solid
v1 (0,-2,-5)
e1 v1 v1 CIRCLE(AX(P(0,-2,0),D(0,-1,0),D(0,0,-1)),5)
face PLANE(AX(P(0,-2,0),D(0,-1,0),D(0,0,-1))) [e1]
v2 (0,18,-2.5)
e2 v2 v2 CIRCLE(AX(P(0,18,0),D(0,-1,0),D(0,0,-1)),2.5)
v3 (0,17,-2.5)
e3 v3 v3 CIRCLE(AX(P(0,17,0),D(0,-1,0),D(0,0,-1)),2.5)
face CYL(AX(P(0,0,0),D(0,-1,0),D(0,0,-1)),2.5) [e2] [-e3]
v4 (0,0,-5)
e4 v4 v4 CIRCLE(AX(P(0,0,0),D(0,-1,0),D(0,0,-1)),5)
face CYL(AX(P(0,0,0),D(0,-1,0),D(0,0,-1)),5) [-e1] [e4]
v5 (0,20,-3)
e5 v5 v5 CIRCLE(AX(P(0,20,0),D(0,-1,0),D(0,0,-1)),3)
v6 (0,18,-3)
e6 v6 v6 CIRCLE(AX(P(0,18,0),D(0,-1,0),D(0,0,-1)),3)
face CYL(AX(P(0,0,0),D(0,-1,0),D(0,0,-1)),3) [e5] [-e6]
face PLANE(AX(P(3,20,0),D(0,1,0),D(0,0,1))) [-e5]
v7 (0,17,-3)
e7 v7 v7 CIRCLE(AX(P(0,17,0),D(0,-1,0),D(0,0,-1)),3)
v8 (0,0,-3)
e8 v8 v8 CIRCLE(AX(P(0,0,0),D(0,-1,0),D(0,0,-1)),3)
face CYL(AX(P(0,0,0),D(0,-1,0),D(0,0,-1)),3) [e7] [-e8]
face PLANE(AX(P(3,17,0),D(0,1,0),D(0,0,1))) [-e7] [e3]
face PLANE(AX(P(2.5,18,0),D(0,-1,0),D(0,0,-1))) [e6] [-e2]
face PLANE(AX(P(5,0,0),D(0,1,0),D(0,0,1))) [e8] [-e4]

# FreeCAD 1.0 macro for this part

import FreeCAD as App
import Part
import Sketcher

V = App.Vector
Q = App.Units.Quantity

doc = App.newDocument("Part")
body = doc.addObject("PartDesign::Body", "Body")

# Sketch on XY plane
sketch1 = doc.addObject("Sketcher::SketchObject", "Sketch")
body.addObject(sketch1)
sketch1.AttachmentSupport = (doc.XY_Plane, [""])
sketch1.MapMode = "FlatFace"
sketch1.addGeometry([
    Part.LineSegment(V(3, 0, 0), V(3, 17, 0)),  # 0
    Part.LineSegment(V(3, 17, 0), V(2.5, 17, 0)),  # 1
    Part.LineSegment(V(2.5, 17, 0), V(2.5, 18, 0)),  # 2
    Part.LineSegment(V(2.5, 18, 0), V(3, 18, 0)),  # 3
    Part.LineSegment(V(3, 18, 0), V(3, 20, 0)),  # 4
    Part.LineSegment(V(3, 20, 0), V(0, 20, 0)),  # 5
    Part.LineSegment(V(0, 20, 0), V(0, -2, 0)),  # 6
    Part.LineSegment(V(0, -2, 0), V(5, -2, 0)),  # 7
    Part.LineSegment(V(5, -2, 0), V(5, 0, 0)),  # 8
    Part.LineSegment(V(5, 0, 0), V(3, 0, 0)),  # 9
], False)
sketch1.addConstraint([
    Sketcher.Constraint("Coincident", 0, 2, 1, 1),
    Sketcher.Constraint("Coincident", 1, 2, 2, 1),
    Sketcher.Constraint("Coincident", 2, 2, 3, 1),
    Sketcher.Constraint("Coincident", 3, 2, 4, 1),
    Sketcher.Constraint("Coincident", 4, 2, 5, 1),
    Sketcher.Constraint("Coincident", 5, 2, 6, 1),
    Sketcher.Constraint("Coincident", 6, 2, 7, 1),
    Sketcher.Constraint("Coincident", 7, 2, 8, 1),
    Sketcher.Constraint("Coincident", 8, 2, 9, 1),
    Sketcher.Constraint("Coincident", 9, 2, 0, 1),
    Sketcher.Constraint("Vertical", 0),
    Sketcher.Constraint("Horizontal", 1),
    Sketcher.Constraint("Vertical", 2),
    Sketcher.Constraint("Horizontal", 3),
    Sketcher.Constraint("Vertical", 4),
    Sketcher.Constraint("Horizontal", 5),
    Sketcher.Constraint("Vertical", 6),
    Sketcher.Constraint("Horizontal", 7),
    Sketcher.Constraint("Vertical", 8),
    Sketcher.Constraint("Horizontal", 9),
    Sketcher.Constraint("PointOnObject", 5, 2, -2),
    Sketcher.Constraint("PointOnObject", 8, 2, -1),
    Sketcher.Constraint("Vertical", 0, 2, 3, 2),
    Sketcher.Constraint("Equal", 9, 4),
    Sketcher.Constraint("Equal", 4, 8),
    Sketcher.Constraint("DistanceX", 5, 2, 5, 1, Q("3 mm")),
    Sketcher.Constraint("DistanceX", 7, 1, 7, 2, Q("5 mm")),
    Sketcher.Constraint("DistanceY", 0, 1, 0, 2, Q("17 mm")),
    Sketcher.Constraint("DistanceY", 2, 1, 2, 2, Q("1 mm")),
    Sketcher.Constraint("DistanceX", 1, 2, 1, 1, Q("0.5 mm")),
])
revolution = doc.addObject("PartDesign::Revolution", "Revolution")
body.addObject(revolution)
revolution.Profile = sketch1
revolution.ReferenceAxis = (sketch1, ["V_Axis"])
revolution.Angle = 360

doc.recompute()
